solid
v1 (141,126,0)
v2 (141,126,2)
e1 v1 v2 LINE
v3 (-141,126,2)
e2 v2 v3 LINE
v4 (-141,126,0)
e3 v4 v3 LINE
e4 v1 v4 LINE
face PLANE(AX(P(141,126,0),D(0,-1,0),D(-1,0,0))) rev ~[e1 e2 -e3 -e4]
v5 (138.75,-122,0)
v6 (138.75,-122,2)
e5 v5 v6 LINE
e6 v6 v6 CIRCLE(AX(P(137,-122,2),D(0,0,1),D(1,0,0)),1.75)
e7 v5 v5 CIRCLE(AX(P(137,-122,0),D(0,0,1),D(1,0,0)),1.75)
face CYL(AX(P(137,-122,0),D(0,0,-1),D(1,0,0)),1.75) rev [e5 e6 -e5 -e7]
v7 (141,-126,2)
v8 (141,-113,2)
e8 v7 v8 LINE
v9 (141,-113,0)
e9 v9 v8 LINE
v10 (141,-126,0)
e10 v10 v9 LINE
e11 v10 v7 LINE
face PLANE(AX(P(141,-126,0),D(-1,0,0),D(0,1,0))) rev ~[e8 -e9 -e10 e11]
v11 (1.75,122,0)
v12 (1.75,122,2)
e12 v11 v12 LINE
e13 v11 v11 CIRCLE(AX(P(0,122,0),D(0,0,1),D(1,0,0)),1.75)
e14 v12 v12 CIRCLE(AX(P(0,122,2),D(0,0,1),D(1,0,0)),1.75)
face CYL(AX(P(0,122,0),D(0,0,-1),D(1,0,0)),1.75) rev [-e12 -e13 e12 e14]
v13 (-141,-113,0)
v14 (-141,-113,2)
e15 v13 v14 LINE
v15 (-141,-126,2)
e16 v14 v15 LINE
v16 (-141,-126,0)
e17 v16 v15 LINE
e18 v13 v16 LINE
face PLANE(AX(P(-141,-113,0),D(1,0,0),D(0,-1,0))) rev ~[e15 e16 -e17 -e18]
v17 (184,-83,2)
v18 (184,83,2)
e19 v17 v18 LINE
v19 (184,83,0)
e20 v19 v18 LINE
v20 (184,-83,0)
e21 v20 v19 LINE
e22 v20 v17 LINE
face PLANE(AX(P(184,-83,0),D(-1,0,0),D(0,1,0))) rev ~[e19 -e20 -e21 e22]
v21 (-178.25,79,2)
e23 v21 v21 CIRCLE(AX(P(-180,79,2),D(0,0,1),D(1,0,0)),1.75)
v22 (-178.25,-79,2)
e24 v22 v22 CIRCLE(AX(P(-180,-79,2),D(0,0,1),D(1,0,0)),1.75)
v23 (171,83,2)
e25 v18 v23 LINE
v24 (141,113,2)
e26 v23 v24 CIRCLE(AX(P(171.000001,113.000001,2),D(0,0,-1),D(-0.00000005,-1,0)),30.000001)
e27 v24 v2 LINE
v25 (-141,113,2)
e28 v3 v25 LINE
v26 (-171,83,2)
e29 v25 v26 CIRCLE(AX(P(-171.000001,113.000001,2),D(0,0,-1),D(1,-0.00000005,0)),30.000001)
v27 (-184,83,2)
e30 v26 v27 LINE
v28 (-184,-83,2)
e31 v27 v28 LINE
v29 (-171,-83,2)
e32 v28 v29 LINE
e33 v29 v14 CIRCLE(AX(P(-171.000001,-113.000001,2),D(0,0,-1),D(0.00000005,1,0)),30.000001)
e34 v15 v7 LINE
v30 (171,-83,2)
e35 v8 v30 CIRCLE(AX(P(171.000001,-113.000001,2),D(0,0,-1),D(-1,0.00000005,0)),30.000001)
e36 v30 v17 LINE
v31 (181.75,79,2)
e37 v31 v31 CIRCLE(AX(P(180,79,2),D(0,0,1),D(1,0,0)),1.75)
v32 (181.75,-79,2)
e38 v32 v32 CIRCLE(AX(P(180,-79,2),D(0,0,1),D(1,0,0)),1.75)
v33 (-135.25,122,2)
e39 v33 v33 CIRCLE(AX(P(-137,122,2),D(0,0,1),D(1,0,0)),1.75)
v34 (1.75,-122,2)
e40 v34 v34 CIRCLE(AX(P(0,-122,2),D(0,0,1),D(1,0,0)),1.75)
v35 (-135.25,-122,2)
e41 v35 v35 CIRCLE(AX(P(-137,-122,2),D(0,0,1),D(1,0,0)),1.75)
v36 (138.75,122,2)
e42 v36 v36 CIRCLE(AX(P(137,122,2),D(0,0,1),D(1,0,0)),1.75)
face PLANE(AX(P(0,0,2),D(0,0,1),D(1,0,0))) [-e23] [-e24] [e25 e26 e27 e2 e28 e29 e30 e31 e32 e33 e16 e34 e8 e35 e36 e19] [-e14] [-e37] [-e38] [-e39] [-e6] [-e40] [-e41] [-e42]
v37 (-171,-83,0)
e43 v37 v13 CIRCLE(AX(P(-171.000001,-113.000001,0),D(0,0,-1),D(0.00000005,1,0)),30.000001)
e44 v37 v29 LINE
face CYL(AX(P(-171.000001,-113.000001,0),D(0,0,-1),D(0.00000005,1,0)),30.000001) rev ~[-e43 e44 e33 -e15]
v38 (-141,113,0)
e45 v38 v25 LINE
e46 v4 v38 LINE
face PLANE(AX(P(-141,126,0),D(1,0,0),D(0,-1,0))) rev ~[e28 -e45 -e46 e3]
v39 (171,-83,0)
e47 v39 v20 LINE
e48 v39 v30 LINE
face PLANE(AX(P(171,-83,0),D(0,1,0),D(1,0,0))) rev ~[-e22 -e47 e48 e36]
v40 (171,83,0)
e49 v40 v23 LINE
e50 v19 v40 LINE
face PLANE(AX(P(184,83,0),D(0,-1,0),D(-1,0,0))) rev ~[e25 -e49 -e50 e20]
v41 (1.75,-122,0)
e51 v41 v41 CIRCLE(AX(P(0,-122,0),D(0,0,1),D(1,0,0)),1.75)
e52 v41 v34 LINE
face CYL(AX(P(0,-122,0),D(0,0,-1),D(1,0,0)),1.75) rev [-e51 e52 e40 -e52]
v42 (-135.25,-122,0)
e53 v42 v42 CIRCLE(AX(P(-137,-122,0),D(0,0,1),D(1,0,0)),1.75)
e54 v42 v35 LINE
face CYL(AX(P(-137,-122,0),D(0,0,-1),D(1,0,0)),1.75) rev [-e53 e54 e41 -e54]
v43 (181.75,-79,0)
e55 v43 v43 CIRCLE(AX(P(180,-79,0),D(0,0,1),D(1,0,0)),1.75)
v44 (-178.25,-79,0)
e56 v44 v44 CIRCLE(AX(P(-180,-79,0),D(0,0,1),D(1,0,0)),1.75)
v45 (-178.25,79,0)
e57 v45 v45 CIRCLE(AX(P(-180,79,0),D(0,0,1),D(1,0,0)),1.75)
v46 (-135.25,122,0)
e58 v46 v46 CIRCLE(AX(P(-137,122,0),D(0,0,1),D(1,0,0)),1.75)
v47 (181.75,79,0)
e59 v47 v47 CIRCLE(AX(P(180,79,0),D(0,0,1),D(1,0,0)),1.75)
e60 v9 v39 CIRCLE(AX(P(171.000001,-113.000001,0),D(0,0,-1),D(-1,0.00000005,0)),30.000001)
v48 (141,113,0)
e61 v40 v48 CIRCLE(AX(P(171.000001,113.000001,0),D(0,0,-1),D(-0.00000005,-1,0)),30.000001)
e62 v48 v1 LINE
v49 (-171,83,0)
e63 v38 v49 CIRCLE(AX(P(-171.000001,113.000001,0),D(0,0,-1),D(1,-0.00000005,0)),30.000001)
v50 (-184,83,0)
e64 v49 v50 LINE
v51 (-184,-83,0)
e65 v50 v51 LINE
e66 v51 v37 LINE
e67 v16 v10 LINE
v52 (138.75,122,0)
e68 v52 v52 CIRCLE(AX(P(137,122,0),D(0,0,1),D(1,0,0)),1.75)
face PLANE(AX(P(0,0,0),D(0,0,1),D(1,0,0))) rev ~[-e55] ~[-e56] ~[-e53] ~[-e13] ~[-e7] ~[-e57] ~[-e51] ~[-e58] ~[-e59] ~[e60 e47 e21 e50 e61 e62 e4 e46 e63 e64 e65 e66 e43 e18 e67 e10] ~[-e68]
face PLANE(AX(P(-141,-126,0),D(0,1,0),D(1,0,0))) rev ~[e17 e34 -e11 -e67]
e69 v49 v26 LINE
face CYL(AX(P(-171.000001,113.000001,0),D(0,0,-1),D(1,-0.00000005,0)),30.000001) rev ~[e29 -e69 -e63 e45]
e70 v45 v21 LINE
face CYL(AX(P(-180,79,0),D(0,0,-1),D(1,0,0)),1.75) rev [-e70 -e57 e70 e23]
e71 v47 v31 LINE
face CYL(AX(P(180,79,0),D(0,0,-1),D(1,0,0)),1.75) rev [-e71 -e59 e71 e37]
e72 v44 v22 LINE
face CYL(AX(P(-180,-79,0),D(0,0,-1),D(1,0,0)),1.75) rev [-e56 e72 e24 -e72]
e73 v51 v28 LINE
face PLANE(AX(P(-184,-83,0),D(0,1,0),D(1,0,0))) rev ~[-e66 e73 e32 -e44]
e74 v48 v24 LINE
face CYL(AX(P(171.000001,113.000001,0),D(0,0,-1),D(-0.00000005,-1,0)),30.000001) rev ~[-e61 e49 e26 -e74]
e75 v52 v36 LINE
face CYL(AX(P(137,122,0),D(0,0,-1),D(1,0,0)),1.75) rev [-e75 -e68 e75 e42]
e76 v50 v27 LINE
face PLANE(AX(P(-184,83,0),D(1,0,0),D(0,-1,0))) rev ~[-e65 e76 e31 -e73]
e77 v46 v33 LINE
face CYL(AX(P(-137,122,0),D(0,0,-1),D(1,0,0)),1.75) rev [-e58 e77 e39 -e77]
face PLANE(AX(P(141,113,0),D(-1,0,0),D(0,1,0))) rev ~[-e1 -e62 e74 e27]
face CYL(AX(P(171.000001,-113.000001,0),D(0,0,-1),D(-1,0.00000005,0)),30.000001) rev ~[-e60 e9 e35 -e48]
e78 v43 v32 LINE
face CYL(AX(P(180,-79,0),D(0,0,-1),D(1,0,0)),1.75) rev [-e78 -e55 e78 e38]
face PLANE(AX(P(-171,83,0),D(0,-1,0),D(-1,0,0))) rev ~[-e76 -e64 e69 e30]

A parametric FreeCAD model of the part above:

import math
import FreeCAD as App
import Part
import Sketcher
from FreeCAD import Vector
Q = App.Units.Quantity

doc = App.newDocument("Part")
params = doc.addObject("Spreadsheet::Sheet", "Params")
for row, (alias, value) in enumerate([
    ("sketch1_radius", "30.000001 mm"),
    ("sketch1_diameter", "3.5 mm"),
    ("sketch1_width", "282 mm"),
    ("sketch1_width2", "13 mm"),
    ("sketch1_height", "166 mm"),
    ("pad1_length", "2 mm"),
], start=1):
    params.set(f"A{row}", alias)
    params.set(f"B{row}", "=" + value)
    params.setAlias(f"B{row}", alias)

body = doc.addObject("PartDesign::Body", "Body")

sketch1 = body.newObject("Sketcher::SketchObject", "Sketch")
sketch1.AttachmentSupport = (doc.getObject("XY_Plane"), [""])
sketch1.MapMode = "FlatFace"
sketch1.addGeometry(Part.LineSegment(Vector(141, 126, 0), Vector(-141, 126, 0)), False)
sketch1.addGeometry(Part.LineSegment(Vector(-141, 126, 0), Vector(-141, 113, 0)), False)
sketch1.addGeometry(Part.ArcOfCircle(Part.Circle(Vector(-171, 113, 0), Vector(0, 0, 1), 30), math.radians(-90), math.radians(0)), False)
sketch1.addGeometry(Part.LineSegment(Vector(-171, 83, 0), Vector(-184, 83, 0)), False)
sketch1.addGeometry(Part.LineSegment(Vector(-184, 83, 0), Vector(-184, -83, 0)), False)
sketch1.addGeometry(Part.LineSegment(Vector(-184, -83, 0), Vector(-171, -83, 0)), False)
sketch1.addGeometry(Part.ArcOfCircle(Part.Circle(Vector(-171, -113, 0), Vector(0, 0, 1), 30), math.radians(0), math.radians(90)), False)
sketch1.addGeometry(Part.LineSegment(Vector(-141, -113, 0), Vector(-141, -126, 0)), False)
sketch1.addGeometry(Part.LineSegment(Vector(-141, -126, 0), Vector(141, -126, 0)), False)
sketch1.addGeometry(Part.LineSegment(Vector(141, -126, 0), Vector(141, -113, 0)), False)
sketch1.addGeometry(Part.ArcOfCircle(Part.Circle(Vector(171, -113, 0), Vector(0, 0, 1), 30), math.radians(90), math.radians(180)), False)
sketch1.addGeometry(Part.LineSegment(Vector(171, -83, 0), Vector(184, -83, 0)), False)
sketch1.addGeometry(Part.LineSegment(Vector(184, -83, 0), Vector(184, 83, 0)), False)
sketch1.addGeometry(Part.LineSegment(Vector(184, 83, 0), Vector(171, 83, 0)), False)
sketch1.addGeometry(Part.ArcOfCircle(Part.Circle(Vector(171, 113, 0), Vector(0, 0, 1), 30), math.radians(-180), math.radians(-90)), False)
sketch1.addGeometry(Part.LineSegment(Vector(141, 113, 0), Vector(141, 126, 0)), False)
sketch1.addGeometry(Part.Circle(Vector(-137, -122, 0), Vector(0, 0, 1), 1.8), False)
sketch1.addGeometry(Part.Circle(Vector(-180, -79, 0), Vector(0, 0, 1), 1.8), False)
sketch1.addGeometry(Part.Circle(Vector(0, -122, 0), Vector(0, 0, 1), 1.8), False)
sketch1.addGeometry(Part.Circle(Vector(137, -122, 0), Vector(0, 0, 1), 1.8), False)
sketch1.addGeometry(Part.Circle(Vector(180, -79, 0), Vector(0, 0, 1), 1.8), False)
sketch1.addGeometry(Part.Circle(Vector(-180, 79, 0), Vector(0, 0, 1), 1.8), False)
sketch1.addGeometry(Part.Circle(Vector(-137, 122, 0), Vector(0, 0, 1), 1.8), False)
sketch1.addGeometry(Part.Circle(Vector(0, 122, 0), Vector(0, 0, 1), 1.8), False)
sketch1.addGeometry(Part.Circle(Vector(180, 79, 0), Vector(0, 0, 1), 1.8), False)
sketch1.addGeometry(Part.Circle(Vector(137, 122, 0), Vector(0, 0, 1), 1.8), False)
sketch1.addConstraint(Sketcher.Constraint("Coincident", 0, 2, 1, 1))
sketch1.addConstraint(Sketcher.Constraint("Tangent", 1, 2, 2, 2))
sketch1.addConstraint(Sketcher.Constraint("Tangent", 2, 1, 3, 1))
sketch1.addConstraint(Sketcher.Constraint("Coincident", 3, 2, 4, 1))
sketch1.addConstraint(Sketcher.Constraint("Coincident", 4, 2, 5, 1))
sketch1.addConstraint(Sketcher.Constraint("Tangent", 5, 2, 6, 2))
sketch1.addConstraint(Sketcher.Constraint("Tangent", 6, 1, 7, 1))
sketch1.addConstraint(Sketcher.Constraint("Coincident", 7, 2, 8, 1))
sketch1.addConstraint(Sketcher.Constraint("Coincident", 8, 2, 9, 1))
sketch1.addConstraint(Sketcher.Constraint("Tangent", 9, 2, 10, 2))
sketch1.addConstraint(Sketcher.Constraint("Tangent", 10, 1, 11, 1))
sketch1.addConstraint(Sketcher.Constraint("Coincident", 11, 2, 12, 1))
sketch1.addConstraint(Sketcher.Constraint("Coincident", 12, 2, 13, 1))
sketch1.addConstraint(Sketcher.Constraint("Tangent", 13, 2, 14, 2))
sketch1.addConstraint(Sketcher.Constraint("Tangent", 14, 1, 15, 1))
sketch1.addConstraint(Sketcher.Constraint("Coincident", 15, 2, 0, 1))
sketch1.addConstraint(Sketcher.Constraint("Horizontal", 0))
sketch1.addConstraint(Sketcher.Constraint("Vertical", 1))
sketch1.addConstraint(Sketcher.Constraint("Horizontal", 3))
sketch1.addConstraint(Sketcher.Constraint("Vertical", 4))
sketch1.addConstraint(Sketcher.Constraint("Horizontal", 5))
sketch1.addConstraint(Sketcher.Constraint("Vertical", 7))
sketch1.addConstraint(Sketcher.Constraint("Horizontal", 8))
sketch1.addConstraint(Sketcher.Constraint("Vertical", 9))
sketch1.addConstraint(Sketcher.Constraint("Horizontal", 11))
sketch1.addConstraint(Sketcher.Constraint("Vertical", 12))
sketch1.addConstraint(Sketcher.Constraint("Horizontal", 13))
sketch1.addConstraint(Sketcher.Constraint("Vertical", 15))
sketch1.addConstraint(Sketcher.Constraint("Equal", 2, 6))
sketch1.addConstraint(Sketcher.Constraint("Equal", 6, 10))
sketch1.addConstraint(Sketcher.Constraint("Equal", 10, 14))
sketch1.addConstraint(Sketcher.Constraint("Equal", 16, 17))
sketch1.addConstraint(Sketcher.Constraint("Equal", 17, 18))
sketch1.addConstraint(Sketcher.Constraint("Equal", 18, 19))
sketch1.addConstraint(Sketcher.Constraint("Equal", 19, 20))
sketch1.addConstraint(Sketcher.Constraint("Equal", 20, 21))
sketch1.addConstraint(Sketcher.Constraint("Equal", 21, 22))
sketch1.addConstraint(Sketcher.Constraint("Equal", 22, 23))
sketch1.addConstraint(Sketcher.Constraint("Equal", 23, 24))
sketch1.addConstraint(Sketcher.Constraint("Equal", 24, 25))
sketch1.addConstraint(Sketcher.Constraint("Symmetric", 2, 3, 10, 3, -1, 1))
sketch1.addConstraint(Sketcher.Constraint("Symmetric", 6, 3, 14, 3, -1, 1))
sketch1.addConstraint(Sketcher.Constraint("Symmetric", 20, 3, 21, 3, -1, 1))
sketch1.addConstraint(Sketcher.Constraint("Symmetric", 19, 3, 22, 3, -1, 1))
sketch1.addConstraint(Sketcher.Constraint("Symmetric", 18, 3, 23, 3, -1, 1))
sketch1.addConstraint(Sketcher.Constraint("Symmetric", 17, 3, 24, 3, -1, 1))
sketch1.addConstraint(Sketcher.Constraint("Symmetric", 16, 3, 25, 3, -1, 1))
sketch1.addConstraint(Sketcher.Constraint("Symmetric", 6, 3, 10, 3, -2))
sketch1.addConstraint(Sketcher.Constraint("Symmetric", 16, 3, 19, 3, -2))
sketch1.addConstraint(Sketcher.Constraint("Symmetric", 17, 3, 20, 3, -2))
sketch1.addConstraint(Sketcher.Constraint("PointOnObject", 18, 3, -2))
sketch1.addConstraint(Sketcher.Constraint("Horizontal", 16, 3, 18, 3))
sketch1.addConstraint(Sketcher.Constraint("Equal", 5, 11))
sketch1.addConstraint(Sketcher.Constraint("Equal", 13, 1))
sketch1.addConstraint(Sketcher.Constraint("Equal", 1, 7))
sketch1.addConstraint(Sketcher.Constraint("Radius", 2, Q("30.000001 mm")))
sketch1.addConstraint(Sketcher.Constraint("Diameter", 16, Q("3.5 mm")))
sketch1.addConstraint(Sketcher.Constraint("DistanceX", 0, 2, 0, 1, Q("282 mm")))
sketch1.addConstraint(Sketcher.Constraint("DistanceX", 3, 2, 3, 1, Q("13 mm")))
sketch1.addConstraint(Sketcher.Constraint("DistanceY", 4, 2, 4, 1, Q("166 mm")))
sketch1.addConstraint(Sketcher.Constraint("DistanceX", 16, 3, -1, 1, Q("137 mm")))
sketch1.addConstraint(Sketcher.Constraint("DistanceY", 16, 3, -1, 1, Q("122 mm")))
sketch1.addConstraint(Sketcher.Constraint("DistanceX", 17, 3, -1, 1, Q("180 mm")))
sketch1.addConstraint(Sketcher.Constraint("DistanceY", 17, 3, -1, 1, Q("79 mm")))
sketch1.setExpression("Constraints[55]", "Params.sketch1_radius")
sketch1.setExpression("Constraints[56]", "Params.sketch1_diameter")
sketch1.setExpression("Constraints[57]", "Params.sketch1_width")
sketch1.setExpression("Constraints[58]", "Params.sketch1_width2")
sketch1.setExpression("Constraints[59]", "Params.sketch1_height")
pad1 = body.newObject("PartDesign::Pad", "Pad")
pad1.Profile = sketch1
pad1.setExpression("Length", "Params.pad1_length")

doc.recompute()
